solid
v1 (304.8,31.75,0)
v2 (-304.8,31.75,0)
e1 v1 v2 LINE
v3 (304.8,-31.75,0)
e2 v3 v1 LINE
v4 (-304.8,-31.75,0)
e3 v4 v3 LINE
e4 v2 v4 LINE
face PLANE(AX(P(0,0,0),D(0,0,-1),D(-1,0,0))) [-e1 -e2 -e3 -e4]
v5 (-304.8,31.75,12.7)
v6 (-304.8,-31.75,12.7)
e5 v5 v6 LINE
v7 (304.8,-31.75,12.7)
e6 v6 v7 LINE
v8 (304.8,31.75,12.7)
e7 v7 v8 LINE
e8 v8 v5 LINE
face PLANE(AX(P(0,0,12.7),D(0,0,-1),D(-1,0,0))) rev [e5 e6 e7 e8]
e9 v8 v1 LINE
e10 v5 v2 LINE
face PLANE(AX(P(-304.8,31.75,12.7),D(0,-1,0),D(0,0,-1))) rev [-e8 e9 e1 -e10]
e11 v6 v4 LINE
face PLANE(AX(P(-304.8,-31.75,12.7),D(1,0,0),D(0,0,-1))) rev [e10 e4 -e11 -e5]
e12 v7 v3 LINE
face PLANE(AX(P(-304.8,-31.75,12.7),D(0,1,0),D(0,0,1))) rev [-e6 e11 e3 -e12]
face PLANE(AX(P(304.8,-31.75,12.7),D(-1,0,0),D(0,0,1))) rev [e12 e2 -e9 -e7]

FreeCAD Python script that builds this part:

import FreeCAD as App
import Part
import Sketcher

V = App.Vector
Q = App.Units.Quantity


def add_polygon(sketch, points):
    """Adds a closed chain of lines whose ends are joined by coincident constraints."""
    first, n = sketch.GeometryCount, len(points)
    for a, b in zip(points, points[1:] + points[:1]):
        sketch.addGeometry(Part.LineSegment(App.Vector(*a, 0), App.Vector(*b, 0)), False)
    for i in range(n):
        sketch.addConstraint(Sketcher.Constraint("Coincident", first + i, 2, first + (i + 1) % n, 1))

doc = App.newDocument("Part")
body = doc.addObject("PartDesign::Body", "Body")

sketch1 = body.newObject("Sketcher::SketchObject", "Sketch")
sketch1.AttachmentSupport = (doc.getObject("XY_Plane"), [""])
sketch1.MapMode = "FlatFace"
add_polygon(sketch1, [(-304.8, 31.75), (-304.8, -31.75), (304.8, -31.75), (304.8, 31.75)])
sketch1.addConstraint(Sketcher.Constraint("Vertical", 0))
sketch1.addConstraint(Sketcher.Constraint("Horizontal", 1))
sketch1.addConstraint(Sketcher.Constraint("Vertical", 2))
sketch1.addConstraint(Sketcher.Constraint("Horizontal", 3))
sketch1.addConstraint(Sketcher.Constraint("Symmetric", 0, 2, 2, 2, -1, 1))
sketch1.addConstraint(Sketcher.Constraint("DistanceX", 1, 1, 1, 2, Q("24 in")))
sketch1.addConstraint(Sketcher.Constraint("DistanceY", 0, 2, 0, 1, Q("2.5 in")))
pad1 = body.newObject("PartDesign::Pad", "Pad")
pad1.Profile = sketch1
pad1.Length = Q("0.5 in")

doc.recompute()
